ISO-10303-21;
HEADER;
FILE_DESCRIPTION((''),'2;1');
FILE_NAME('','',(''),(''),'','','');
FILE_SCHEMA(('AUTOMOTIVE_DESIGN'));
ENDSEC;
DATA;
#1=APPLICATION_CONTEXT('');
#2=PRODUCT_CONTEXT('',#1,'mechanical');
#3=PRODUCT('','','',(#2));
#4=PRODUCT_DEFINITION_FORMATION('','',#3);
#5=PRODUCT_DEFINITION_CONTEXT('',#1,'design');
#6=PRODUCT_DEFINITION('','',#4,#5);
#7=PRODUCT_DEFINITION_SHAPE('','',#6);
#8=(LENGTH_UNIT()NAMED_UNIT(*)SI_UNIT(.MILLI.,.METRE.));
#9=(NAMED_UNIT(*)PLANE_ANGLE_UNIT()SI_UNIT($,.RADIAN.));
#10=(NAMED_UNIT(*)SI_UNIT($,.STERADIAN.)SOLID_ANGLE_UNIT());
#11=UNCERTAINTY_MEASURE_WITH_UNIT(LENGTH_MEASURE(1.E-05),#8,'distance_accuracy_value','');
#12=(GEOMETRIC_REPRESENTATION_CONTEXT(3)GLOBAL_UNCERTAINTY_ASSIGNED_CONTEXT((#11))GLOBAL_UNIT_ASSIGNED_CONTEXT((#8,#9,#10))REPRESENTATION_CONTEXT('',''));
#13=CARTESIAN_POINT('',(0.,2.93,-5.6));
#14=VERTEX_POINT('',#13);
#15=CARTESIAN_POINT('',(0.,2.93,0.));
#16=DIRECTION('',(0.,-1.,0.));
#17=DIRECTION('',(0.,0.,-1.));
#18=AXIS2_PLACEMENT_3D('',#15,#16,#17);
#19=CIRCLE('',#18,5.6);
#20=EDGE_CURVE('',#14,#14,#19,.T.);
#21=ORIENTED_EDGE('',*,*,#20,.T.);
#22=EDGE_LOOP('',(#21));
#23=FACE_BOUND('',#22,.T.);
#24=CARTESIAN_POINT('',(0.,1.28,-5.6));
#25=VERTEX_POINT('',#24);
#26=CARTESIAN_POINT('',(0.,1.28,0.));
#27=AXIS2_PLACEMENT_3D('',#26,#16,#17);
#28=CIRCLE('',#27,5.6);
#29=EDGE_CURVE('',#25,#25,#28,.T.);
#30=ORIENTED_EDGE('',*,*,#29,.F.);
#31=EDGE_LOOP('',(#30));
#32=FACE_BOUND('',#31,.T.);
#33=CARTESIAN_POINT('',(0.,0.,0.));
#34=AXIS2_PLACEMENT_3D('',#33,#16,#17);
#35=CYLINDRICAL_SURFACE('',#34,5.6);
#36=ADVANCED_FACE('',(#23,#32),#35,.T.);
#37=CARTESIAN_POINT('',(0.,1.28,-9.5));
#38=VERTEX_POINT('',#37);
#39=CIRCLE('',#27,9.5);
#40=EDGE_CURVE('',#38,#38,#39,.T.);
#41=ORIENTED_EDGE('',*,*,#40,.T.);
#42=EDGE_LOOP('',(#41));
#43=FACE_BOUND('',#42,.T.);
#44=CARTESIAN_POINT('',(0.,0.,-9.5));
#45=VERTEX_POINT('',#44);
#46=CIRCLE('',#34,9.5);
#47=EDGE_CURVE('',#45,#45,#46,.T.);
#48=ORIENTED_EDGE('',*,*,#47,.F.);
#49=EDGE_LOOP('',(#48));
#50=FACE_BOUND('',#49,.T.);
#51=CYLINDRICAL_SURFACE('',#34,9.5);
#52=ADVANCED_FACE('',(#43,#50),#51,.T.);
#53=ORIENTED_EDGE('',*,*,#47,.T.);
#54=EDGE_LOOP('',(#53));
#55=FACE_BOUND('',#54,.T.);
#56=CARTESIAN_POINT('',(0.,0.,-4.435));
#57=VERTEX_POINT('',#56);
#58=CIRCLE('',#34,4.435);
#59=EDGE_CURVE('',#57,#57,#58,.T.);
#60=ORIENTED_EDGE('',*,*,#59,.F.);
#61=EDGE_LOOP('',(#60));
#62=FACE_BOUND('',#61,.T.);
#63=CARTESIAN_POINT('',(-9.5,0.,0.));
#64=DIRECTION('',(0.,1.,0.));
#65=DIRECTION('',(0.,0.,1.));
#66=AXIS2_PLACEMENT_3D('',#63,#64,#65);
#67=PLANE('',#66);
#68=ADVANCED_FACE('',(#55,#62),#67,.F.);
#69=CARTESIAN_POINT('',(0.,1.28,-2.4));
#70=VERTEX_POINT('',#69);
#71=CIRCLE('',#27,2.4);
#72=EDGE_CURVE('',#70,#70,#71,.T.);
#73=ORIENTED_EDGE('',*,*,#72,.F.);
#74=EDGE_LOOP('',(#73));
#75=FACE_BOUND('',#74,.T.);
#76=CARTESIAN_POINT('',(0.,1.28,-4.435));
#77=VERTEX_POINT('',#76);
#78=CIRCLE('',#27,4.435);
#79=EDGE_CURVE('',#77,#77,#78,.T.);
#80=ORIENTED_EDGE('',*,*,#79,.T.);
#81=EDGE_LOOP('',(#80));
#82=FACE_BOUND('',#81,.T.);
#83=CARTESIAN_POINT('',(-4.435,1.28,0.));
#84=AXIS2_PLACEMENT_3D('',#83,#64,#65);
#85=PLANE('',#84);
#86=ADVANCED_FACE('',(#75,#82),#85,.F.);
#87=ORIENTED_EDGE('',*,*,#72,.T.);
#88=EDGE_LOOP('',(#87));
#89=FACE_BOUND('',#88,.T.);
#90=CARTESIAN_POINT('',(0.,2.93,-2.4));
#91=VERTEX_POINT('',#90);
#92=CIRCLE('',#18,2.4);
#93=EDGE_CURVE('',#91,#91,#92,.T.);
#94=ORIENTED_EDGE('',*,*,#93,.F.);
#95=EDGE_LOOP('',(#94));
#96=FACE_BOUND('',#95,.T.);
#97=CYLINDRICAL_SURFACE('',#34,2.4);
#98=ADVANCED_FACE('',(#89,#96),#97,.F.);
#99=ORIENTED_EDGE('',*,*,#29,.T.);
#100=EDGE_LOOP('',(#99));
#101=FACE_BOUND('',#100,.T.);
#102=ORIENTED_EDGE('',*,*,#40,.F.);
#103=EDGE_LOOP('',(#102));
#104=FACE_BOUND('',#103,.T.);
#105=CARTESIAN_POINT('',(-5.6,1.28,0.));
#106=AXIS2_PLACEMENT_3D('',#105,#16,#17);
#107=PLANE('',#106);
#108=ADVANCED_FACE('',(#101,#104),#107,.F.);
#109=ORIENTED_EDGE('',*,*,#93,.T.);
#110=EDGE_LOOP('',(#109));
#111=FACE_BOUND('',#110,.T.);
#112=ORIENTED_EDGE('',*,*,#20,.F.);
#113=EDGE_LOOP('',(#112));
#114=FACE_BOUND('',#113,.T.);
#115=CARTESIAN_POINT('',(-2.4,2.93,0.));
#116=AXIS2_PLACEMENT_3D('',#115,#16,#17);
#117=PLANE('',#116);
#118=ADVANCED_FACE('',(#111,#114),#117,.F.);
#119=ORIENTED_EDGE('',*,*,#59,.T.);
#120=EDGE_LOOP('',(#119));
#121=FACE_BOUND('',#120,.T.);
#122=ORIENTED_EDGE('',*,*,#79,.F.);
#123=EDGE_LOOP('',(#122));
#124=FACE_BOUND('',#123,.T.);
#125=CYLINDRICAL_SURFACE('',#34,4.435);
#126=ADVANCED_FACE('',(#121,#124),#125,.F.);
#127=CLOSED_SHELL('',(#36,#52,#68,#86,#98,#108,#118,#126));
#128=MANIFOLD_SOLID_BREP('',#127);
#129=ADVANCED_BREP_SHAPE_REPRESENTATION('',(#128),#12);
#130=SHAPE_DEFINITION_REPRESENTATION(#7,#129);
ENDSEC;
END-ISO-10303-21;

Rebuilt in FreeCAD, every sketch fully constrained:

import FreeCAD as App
import Part
import Sketcher

V = App.Vector


def add_polygon(sketch, points):
    """Adds a closed chain of lines whose ends are joined by coincident constraints."""
    first, n = sketch.GeometryCount, len(points)
    for a, b in zip(points, points[1:] + points[:1]):
        sketch.addGeometry(Part.LineSegment(App.Vector(*a, 0), App.Vector(*b, 0)), False)
    for i in range(n):
        sketch.addConstraint(Sketcher.Constraint("Coincident", first + i, 2, first + (i + 1) % n, 1))

doc = App.newDocument("Part")
body = doc.addObject("PartDesign::Body", "Body")

# Sketch on XY plane
sketch1 = doc.addObject("Sketcher::SketchObject", "Sketch")
body.addObject(sketch1)
sketch1.AttachmentSupport = (doc.XY_Plane, [""])
sketch1.MapMode = "FlatFace"
add_polygon(sketch1, [(-4.4, 0), (-4.4, 1.3), (-2.4, 1.3), (-2.4, 2.9), (-5.6, 2.9), (-5.6, 1.3), (-9.5, 1.3), (-9.5, 0)])  # lines 0-7
sketch1.addConstraint(Sketcher.Constraint("Vertical", 0))
sketch1.addConstraint(Sketcher.Constraint("Horizontal", 1))
sketch1.addConstraint(Sketcher.Constraint("Vertical", 2))
sketch1.addConstraint(Sketcher.Constraint("Horizontal", 3))
sketch1.addConstraint(Sketcher.Constraint("Vertical", 4))
sketch1.addConstraint(Sketcher.Constraint("Horizontal", 5))
sketch1.addConstraint(Sketcher.Constraint("Vertical", 6))
sketch1.addConstraint(Sketcher.Constraint("Horizontal", 7))
sketch1.addConstraint(Sketcher.Constraint("PointOnObject", 6, 2, -1))
sketch1.addConstraint(Sketcher.Constraint("Horizontal", 1, 2, 4, 2))
sketch1.addConstraint(Sketcher.Constraint("DistanceX", 3, 2, 3, 1, 3.2))
sketch1.addConstraint(Sketcher.Constraint("DistanceX", 5, 2, 5, 1, 3.9))
sketch1.addConstraint(Sketcher.Constraint("DistanceY", 0, 1, 0, 2, 1.28))
sketch1.addConstraint(Sketcher.Constraint("DistanceY", 2, 1, 2, 2, 1.65))
sketch1.addConstraint(Sketcher.Constraint("DistanceX", 1, 2, -1, 1, 2.4))
sketch1.addConstraint(Sketcher.Constraint("DistanceX", 1, 1, 1, 2, 2.035))
revolution = doc.addObject("PartDesign::Revolution", "Revolution")
body.addObject(revolution)
revolution.Profile = sketch1
revolution.ReferenceAxis = (sketch1, ["V_Axis"])
revolution.Angle = 360

doc.recompute()
